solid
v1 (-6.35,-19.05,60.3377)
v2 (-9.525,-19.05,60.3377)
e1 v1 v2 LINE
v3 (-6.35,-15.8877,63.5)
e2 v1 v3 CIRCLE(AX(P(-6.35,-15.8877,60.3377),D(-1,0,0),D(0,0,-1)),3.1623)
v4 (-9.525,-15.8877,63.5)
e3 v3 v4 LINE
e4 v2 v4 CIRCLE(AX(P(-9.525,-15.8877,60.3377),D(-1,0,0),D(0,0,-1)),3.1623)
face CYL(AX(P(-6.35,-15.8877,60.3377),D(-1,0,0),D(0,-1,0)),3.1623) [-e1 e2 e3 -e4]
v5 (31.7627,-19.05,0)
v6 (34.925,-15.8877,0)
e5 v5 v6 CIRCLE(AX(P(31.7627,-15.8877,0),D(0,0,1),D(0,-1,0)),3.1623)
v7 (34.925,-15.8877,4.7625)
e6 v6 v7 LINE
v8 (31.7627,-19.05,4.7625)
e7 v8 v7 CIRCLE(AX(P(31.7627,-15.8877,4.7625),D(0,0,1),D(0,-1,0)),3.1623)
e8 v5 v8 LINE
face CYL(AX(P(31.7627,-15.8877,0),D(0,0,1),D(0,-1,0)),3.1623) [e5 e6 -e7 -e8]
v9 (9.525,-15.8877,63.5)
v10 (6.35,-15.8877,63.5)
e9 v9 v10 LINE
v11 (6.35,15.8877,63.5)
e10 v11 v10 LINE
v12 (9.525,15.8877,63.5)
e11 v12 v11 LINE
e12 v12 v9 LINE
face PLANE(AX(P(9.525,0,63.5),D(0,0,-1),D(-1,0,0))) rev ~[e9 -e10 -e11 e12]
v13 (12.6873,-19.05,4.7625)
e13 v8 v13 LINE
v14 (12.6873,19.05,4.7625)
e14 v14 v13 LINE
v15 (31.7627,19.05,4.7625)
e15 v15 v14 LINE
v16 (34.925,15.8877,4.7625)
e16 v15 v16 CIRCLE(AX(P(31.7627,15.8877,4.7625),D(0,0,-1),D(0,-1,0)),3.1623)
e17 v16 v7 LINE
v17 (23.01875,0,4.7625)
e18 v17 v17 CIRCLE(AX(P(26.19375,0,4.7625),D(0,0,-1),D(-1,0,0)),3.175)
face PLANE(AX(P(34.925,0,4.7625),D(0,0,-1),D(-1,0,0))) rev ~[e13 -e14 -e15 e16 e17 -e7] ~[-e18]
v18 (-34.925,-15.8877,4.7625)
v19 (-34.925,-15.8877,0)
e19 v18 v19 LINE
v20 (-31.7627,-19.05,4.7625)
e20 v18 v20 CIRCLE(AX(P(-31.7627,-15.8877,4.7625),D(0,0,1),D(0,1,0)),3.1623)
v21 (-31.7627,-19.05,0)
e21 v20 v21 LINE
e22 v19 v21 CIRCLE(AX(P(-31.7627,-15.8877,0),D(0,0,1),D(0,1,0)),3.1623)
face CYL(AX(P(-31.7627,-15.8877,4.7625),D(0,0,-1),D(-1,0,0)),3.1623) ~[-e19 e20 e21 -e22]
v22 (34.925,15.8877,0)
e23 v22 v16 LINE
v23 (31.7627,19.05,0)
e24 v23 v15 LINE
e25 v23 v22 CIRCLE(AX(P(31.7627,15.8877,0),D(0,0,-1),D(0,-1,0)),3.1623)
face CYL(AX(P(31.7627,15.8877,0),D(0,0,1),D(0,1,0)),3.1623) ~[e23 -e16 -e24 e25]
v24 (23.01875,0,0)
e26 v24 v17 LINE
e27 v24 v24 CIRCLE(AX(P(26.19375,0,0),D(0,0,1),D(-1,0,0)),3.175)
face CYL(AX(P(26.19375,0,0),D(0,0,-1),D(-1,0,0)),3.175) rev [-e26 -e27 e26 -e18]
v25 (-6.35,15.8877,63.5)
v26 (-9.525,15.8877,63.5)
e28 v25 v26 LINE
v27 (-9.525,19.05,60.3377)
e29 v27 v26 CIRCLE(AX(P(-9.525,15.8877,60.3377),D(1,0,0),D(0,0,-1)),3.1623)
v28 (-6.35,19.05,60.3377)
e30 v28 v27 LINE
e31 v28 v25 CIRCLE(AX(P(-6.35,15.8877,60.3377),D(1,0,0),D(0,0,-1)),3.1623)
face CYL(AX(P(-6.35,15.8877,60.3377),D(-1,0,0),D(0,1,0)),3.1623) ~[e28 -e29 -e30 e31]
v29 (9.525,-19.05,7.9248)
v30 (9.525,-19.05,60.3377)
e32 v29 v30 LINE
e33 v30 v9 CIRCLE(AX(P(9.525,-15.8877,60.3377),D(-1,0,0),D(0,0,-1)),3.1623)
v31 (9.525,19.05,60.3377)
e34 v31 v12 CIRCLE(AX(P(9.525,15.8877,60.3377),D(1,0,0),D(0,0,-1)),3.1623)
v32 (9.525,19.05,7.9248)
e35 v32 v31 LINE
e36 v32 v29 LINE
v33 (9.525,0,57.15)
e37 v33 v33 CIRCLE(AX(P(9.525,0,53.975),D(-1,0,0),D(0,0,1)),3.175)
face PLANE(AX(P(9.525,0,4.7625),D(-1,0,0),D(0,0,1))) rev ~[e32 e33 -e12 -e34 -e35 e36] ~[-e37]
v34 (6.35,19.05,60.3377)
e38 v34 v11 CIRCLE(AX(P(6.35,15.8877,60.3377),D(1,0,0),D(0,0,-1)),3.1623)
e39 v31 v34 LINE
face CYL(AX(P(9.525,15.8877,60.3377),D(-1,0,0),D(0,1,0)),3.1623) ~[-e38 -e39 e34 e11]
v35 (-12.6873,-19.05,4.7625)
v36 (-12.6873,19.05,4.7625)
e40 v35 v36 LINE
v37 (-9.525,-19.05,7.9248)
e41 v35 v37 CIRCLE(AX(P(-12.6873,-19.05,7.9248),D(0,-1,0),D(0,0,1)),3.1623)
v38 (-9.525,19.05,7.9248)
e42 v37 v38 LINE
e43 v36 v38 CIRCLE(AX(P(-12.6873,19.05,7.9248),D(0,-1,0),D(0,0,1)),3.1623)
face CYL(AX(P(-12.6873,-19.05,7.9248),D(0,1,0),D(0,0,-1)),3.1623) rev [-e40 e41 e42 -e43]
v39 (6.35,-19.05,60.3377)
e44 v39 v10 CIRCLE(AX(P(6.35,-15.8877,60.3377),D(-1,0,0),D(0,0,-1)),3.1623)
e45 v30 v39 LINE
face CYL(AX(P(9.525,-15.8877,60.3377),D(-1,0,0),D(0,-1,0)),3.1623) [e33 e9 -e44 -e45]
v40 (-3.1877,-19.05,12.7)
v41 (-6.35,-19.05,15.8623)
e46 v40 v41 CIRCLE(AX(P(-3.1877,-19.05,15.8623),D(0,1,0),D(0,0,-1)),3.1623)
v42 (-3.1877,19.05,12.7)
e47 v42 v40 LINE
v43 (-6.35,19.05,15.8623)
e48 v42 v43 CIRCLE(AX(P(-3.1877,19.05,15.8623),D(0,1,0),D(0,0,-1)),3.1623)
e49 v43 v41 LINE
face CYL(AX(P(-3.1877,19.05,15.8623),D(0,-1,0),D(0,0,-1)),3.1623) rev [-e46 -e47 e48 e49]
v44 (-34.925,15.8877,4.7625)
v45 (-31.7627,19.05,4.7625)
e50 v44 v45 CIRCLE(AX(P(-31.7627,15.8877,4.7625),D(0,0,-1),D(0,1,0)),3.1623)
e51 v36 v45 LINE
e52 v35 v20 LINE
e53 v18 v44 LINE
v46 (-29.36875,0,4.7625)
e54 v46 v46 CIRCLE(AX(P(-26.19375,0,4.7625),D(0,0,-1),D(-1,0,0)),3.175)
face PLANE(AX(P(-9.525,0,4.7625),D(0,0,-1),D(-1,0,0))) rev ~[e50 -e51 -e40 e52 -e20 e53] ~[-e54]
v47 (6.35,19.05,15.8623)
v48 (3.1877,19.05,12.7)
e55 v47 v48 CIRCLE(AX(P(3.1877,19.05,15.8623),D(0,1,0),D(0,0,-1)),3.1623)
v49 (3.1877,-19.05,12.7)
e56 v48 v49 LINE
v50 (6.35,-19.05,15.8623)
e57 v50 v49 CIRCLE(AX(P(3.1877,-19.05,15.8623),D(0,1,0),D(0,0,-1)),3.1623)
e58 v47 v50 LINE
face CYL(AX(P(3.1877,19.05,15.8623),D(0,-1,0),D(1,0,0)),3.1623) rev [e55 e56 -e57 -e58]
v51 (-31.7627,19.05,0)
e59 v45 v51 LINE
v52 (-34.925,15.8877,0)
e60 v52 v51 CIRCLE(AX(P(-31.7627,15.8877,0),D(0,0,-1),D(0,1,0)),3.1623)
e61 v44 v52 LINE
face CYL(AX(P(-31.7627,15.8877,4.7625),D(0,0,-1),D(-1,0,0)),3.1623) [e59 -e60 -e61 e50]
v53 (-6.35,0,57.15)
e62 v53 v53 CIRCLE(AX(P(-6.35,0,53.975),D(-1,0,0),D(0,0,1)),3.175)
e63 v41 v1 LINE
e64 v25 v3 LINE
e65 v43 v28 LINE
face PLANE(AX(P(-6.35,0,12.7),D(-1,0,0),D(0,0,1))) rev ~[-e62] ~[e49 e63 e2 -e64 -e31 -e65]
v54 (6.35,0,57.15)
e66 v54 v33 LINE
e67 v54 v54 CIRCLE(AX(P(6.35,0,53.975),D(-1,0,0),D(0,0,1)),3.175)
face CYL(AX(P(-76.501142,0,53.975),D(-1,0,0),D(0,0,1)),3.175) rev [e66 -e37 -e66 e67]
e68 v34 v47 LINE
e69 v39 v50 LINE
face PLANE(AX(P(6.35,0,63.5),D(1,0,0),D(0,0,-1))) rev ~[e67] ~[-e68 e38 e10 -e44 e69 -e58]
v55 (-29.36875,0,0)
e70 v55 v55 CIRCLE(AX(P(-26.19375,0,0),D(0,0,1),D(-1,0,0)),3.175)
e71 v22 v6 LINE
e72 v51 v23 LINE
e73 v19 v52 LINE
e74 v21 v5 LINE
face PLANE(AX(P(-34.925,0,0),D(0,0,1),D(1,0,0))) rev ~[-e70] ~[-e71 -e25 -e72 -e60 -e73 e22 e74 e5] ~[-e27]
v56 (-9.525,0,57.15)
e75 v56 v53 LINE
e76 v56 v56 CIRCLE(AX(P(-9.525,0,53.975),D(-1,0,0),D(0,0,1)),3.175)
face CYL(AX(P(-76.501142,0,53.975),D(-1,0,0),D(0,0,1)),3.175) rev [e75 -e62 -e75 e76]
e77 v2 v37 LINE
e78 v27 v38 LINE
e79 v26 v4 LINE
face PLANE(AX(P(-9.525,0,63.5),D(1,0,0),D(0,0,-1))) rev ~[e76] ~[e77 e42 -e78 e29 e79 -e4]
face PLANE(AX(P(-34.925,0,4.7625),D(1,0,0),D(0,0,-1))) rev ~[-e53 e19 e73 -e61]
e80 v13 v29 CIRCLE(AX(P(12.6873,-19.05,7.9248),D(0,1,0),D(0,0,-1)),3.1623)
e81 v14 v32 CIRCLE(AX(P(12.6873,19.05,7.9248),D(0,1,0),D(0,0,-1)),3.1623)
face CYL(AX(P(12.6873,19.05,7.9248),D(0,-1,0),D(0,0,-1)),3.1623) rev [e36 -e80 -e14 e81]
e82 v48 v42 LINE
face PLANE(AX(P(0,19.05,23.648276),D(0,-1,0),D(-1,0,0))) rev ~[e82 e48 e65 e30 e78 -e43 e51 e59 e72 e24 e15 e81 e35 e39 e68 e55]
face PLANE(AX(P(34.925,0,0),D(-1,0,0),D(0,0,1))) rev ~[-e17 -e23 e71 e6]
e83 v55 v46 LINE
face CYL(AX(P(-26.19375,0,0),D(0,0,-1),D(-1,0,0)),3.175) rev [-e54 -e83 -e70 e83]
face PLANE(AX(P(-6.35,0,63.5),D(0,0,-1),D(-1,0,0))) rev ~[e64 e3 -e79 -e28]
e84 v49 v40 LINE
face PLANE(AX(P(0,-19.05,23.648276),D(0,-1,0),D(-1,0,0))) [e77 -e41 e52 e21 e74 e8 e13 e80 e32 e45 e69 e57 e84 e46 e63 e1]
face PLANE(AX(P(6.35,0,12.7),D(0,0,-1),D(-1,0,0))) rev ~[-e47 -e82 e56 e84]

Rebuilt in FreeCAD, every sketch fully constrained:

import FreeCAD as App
import Part
import Sketcher
Q = App.Units.Quantity


def edges_at(feature, points):
    """Names of the edges that pass closest to the given points."""
    edges = feature.Shape.Edges
    near = lambda p: min(range(len(edges)), key=lambda i: edges[i].distToShape(Part.Vertex(*p))[0])
    return sorted({f"Edge{near(p) + 1}" for p in points})


def add_polygon(sketch, points):
    """Adds a closed chain of lines whose ends are joined by coincident constraints."""
    first, n = sketch.GeometryCount, len(points)
    for a, b in zip(points, points[1:] + points[:1]):
        sketch.addGeometry(Part.LineSegment(App.Vector(*a, 0), App.Vector(*b, 0)), False)
    for i in range(n):
        sketch.addConstraint(Sketcher.Constraint("Coincident", first + i, 2, first + (i + 1) % n, 1))

doc = App.newDocument("Part")
body = doc.addObject("PartDesign::Body", "Body")

# Sketch on XZ plane
sketch1 = body.newObject("Sketcher::SketchObject", "Sketch")
sketch1.AttachmentSupport = (doc.getObject("XZ_Plane"), [""])
sketch1.MapMode = "FlatFace"
add_polygon(sketch1, [(34.9, 0), (-34.9, 0), (-34.9, 4.8), (-9.5, 4.8), (-9.5, 63.5), (-6.3, 63.5), (-6.3, 12.7), (6.3, 12.7), (6.3, 63.5), (9.5, 63.5), (9.5, 4.8), (34.9, 4.8)])  # lines 0-11
sketch1.addConstraint(Sketcher.Constraint("Horizontal", 0))
sketch1.addConstraint(Sketcher.Constraint("Vertical", 1))
sketch1.addConstraint(Sketcher.Constraint("Horizontal", 2))
sketch1.addConstraint(Sketcher.Constraint("Vertical", 3))
sketch1.addConstraint(Sketcher.Constraint("Horizontal", 4))
sketch1.addConstraint(Sketcher.Constraint("Vertical", 5))
sketch1.addConstraint(Sketcher.Constraint("Horizontal", 6))
sketch1.addConstraint(Sketcher.Constraint("Vertical", 7))
sketch1.addConstraint(Sketcher.Constraint("Horizontal", 8))
sketch1.addConstraint(Sketcher.Constraint("Vertical", 9))
sketch1.addConstraint(Sketcher.Constraint("Horizontal", 10))
sketch1.addConstraint(Sketcher.Constraint("Vertical", 11))
sketch1.addConstraint(Sketcher.Constraint("Symmetric", 0, 2, 11, 2, -1, 1))
sketch1.addConstraint(Sketcher.Constraint("Symmetric", 4, 2, 7, 2, -2))
sketch1.addConstraint(Sketcher.Constraint("Symmetric", 2, 2, 9, 2, -2))
sketch1.addConstraint(Sketcher.Constraint("DistanceX", 2, 1, 2, 2, Q("1 in")))
sketch1.addConstraint(Sketcher.Constraint("DistanceY", 5, 2, 5, 1, Q("2 in")))
sketch1.addConstraint(Sketcher.Constraint("DistanceX", 6, 1, 6, 2, Q("0.5 in")))
sketch1.addConstraint(Sketcher.Constraint("DistanceX", 0, 2, 0, 1, Q("2.75 in")))
sketch1.addConstraint(Sketcher.Constraint("DistanceY", -1, 1, 3, 2, Q("2.5 in")))
sketch1.addConstraint(Sketcher.Constraint("DistanceY", 1, 1, 1, 2, Q("0.1875 in")))
pad1 = body.newObject("PartDesign::Pad", "Pad")
pad1.Profile = sketch1
pad1.Length = Q("1.5 in")
pad1.Midplane = True

# Sketch on XY plane
sketch2 = body.newObject("Sketcher::SketchObject", "Sketch001")
sketch2.AttachmentSupport = (doc.getObject("XY_Plane"), [""])
sketch2.MapMode = "FlatFace"
sketch2.addGeometry(Part.Circle(App.Vector(-26.2, 0, 0), App.Vector(0, 0, 1), 3.2), False)
sketch2.addGeometry(Part.Circle(App.Vector(26.2, 0, 0), App.Vector(0, 0, 1), 3.2), False)
sketch2.addConstraint(Sketcher.Constraint("Equal", 0, 1))
sketch2.addConstraint(Sketcher.Constraint("Symmetric", 0, 3, 1, 3, -1, 1))
sketch2.addConstraint(Sketcher.Constraint("PointOnObject", 0, 3, -1))
sketch2.addConstraint(Sketcher.Constraint("Diameter", 0, Q("0.25 in")))
sketch2.addConstraint(Sketcher.Constraint("DistanceX", 0, 3, -1, 1, Q("1.03125 in")))
pocket1 = body.newObject("PartDesign::Pocket", "Pocket")
pocket1.Profile = sketch2
pocket1.Type = "ThroughAll"
pocket1.Reversed = True

# Sketch on YZ plane
sketch3 = body.newObject("Sketcher::SketchObject", "Sketch002")
sketch3.AttachmentSupport = (doc.getObject("YZ_Plane"), [""])
sketch3.MapMode = "FlatFace"
sketch3.addGeometry(Part.Circle(App.Vector(0, 54, 0), App.Vector(0, 0, 1), 3.2), False)
sketch3.addConstraint(Sketcher.Constraint("PointOnObject", 0, 3, -2))
sketch3.addConstraint(Sketcher.Constraint("Diameter", 0, Q("0.25 in")))
sketch3.addConstraint(Sketcher.Constraint("DistanceY", -1, 1, 0, 3, Q("2.125 in")))
pocket2 = body.newObject("PartDesign::Pocket", "Pocket001")
pocket2.Profile = sketch3
pocket2.Type = "ThroughAll"
pocket2.Midplane = True
doc.recompute()

fillet = body.newObject("PartDesign::Fillet", "Fillet")
fillet.Base = (pocket2, edges_at(pocket2, [
    (-34.925, 19.05, 2.381),
    (7.938, -19.05, 63.5),
    (-7.938, -19.05, 63.5),
    (-34.925, -19.05, 2.381),
    (34.925, -19.05, 2.381),
    (-7.938, 19.05, 63.5),
    (9.525, 0, 4.763),
    (6.35, 0, 12.7),
    (-6.35, 0, 12.7),
    (-9.525, 0, 4.763),
    (7.938, 19.05, 63.5),
    (34.925, 19.05, 2.381),
]))
fillet.Radius = Q("0.1245 in")

doc.recompute()
